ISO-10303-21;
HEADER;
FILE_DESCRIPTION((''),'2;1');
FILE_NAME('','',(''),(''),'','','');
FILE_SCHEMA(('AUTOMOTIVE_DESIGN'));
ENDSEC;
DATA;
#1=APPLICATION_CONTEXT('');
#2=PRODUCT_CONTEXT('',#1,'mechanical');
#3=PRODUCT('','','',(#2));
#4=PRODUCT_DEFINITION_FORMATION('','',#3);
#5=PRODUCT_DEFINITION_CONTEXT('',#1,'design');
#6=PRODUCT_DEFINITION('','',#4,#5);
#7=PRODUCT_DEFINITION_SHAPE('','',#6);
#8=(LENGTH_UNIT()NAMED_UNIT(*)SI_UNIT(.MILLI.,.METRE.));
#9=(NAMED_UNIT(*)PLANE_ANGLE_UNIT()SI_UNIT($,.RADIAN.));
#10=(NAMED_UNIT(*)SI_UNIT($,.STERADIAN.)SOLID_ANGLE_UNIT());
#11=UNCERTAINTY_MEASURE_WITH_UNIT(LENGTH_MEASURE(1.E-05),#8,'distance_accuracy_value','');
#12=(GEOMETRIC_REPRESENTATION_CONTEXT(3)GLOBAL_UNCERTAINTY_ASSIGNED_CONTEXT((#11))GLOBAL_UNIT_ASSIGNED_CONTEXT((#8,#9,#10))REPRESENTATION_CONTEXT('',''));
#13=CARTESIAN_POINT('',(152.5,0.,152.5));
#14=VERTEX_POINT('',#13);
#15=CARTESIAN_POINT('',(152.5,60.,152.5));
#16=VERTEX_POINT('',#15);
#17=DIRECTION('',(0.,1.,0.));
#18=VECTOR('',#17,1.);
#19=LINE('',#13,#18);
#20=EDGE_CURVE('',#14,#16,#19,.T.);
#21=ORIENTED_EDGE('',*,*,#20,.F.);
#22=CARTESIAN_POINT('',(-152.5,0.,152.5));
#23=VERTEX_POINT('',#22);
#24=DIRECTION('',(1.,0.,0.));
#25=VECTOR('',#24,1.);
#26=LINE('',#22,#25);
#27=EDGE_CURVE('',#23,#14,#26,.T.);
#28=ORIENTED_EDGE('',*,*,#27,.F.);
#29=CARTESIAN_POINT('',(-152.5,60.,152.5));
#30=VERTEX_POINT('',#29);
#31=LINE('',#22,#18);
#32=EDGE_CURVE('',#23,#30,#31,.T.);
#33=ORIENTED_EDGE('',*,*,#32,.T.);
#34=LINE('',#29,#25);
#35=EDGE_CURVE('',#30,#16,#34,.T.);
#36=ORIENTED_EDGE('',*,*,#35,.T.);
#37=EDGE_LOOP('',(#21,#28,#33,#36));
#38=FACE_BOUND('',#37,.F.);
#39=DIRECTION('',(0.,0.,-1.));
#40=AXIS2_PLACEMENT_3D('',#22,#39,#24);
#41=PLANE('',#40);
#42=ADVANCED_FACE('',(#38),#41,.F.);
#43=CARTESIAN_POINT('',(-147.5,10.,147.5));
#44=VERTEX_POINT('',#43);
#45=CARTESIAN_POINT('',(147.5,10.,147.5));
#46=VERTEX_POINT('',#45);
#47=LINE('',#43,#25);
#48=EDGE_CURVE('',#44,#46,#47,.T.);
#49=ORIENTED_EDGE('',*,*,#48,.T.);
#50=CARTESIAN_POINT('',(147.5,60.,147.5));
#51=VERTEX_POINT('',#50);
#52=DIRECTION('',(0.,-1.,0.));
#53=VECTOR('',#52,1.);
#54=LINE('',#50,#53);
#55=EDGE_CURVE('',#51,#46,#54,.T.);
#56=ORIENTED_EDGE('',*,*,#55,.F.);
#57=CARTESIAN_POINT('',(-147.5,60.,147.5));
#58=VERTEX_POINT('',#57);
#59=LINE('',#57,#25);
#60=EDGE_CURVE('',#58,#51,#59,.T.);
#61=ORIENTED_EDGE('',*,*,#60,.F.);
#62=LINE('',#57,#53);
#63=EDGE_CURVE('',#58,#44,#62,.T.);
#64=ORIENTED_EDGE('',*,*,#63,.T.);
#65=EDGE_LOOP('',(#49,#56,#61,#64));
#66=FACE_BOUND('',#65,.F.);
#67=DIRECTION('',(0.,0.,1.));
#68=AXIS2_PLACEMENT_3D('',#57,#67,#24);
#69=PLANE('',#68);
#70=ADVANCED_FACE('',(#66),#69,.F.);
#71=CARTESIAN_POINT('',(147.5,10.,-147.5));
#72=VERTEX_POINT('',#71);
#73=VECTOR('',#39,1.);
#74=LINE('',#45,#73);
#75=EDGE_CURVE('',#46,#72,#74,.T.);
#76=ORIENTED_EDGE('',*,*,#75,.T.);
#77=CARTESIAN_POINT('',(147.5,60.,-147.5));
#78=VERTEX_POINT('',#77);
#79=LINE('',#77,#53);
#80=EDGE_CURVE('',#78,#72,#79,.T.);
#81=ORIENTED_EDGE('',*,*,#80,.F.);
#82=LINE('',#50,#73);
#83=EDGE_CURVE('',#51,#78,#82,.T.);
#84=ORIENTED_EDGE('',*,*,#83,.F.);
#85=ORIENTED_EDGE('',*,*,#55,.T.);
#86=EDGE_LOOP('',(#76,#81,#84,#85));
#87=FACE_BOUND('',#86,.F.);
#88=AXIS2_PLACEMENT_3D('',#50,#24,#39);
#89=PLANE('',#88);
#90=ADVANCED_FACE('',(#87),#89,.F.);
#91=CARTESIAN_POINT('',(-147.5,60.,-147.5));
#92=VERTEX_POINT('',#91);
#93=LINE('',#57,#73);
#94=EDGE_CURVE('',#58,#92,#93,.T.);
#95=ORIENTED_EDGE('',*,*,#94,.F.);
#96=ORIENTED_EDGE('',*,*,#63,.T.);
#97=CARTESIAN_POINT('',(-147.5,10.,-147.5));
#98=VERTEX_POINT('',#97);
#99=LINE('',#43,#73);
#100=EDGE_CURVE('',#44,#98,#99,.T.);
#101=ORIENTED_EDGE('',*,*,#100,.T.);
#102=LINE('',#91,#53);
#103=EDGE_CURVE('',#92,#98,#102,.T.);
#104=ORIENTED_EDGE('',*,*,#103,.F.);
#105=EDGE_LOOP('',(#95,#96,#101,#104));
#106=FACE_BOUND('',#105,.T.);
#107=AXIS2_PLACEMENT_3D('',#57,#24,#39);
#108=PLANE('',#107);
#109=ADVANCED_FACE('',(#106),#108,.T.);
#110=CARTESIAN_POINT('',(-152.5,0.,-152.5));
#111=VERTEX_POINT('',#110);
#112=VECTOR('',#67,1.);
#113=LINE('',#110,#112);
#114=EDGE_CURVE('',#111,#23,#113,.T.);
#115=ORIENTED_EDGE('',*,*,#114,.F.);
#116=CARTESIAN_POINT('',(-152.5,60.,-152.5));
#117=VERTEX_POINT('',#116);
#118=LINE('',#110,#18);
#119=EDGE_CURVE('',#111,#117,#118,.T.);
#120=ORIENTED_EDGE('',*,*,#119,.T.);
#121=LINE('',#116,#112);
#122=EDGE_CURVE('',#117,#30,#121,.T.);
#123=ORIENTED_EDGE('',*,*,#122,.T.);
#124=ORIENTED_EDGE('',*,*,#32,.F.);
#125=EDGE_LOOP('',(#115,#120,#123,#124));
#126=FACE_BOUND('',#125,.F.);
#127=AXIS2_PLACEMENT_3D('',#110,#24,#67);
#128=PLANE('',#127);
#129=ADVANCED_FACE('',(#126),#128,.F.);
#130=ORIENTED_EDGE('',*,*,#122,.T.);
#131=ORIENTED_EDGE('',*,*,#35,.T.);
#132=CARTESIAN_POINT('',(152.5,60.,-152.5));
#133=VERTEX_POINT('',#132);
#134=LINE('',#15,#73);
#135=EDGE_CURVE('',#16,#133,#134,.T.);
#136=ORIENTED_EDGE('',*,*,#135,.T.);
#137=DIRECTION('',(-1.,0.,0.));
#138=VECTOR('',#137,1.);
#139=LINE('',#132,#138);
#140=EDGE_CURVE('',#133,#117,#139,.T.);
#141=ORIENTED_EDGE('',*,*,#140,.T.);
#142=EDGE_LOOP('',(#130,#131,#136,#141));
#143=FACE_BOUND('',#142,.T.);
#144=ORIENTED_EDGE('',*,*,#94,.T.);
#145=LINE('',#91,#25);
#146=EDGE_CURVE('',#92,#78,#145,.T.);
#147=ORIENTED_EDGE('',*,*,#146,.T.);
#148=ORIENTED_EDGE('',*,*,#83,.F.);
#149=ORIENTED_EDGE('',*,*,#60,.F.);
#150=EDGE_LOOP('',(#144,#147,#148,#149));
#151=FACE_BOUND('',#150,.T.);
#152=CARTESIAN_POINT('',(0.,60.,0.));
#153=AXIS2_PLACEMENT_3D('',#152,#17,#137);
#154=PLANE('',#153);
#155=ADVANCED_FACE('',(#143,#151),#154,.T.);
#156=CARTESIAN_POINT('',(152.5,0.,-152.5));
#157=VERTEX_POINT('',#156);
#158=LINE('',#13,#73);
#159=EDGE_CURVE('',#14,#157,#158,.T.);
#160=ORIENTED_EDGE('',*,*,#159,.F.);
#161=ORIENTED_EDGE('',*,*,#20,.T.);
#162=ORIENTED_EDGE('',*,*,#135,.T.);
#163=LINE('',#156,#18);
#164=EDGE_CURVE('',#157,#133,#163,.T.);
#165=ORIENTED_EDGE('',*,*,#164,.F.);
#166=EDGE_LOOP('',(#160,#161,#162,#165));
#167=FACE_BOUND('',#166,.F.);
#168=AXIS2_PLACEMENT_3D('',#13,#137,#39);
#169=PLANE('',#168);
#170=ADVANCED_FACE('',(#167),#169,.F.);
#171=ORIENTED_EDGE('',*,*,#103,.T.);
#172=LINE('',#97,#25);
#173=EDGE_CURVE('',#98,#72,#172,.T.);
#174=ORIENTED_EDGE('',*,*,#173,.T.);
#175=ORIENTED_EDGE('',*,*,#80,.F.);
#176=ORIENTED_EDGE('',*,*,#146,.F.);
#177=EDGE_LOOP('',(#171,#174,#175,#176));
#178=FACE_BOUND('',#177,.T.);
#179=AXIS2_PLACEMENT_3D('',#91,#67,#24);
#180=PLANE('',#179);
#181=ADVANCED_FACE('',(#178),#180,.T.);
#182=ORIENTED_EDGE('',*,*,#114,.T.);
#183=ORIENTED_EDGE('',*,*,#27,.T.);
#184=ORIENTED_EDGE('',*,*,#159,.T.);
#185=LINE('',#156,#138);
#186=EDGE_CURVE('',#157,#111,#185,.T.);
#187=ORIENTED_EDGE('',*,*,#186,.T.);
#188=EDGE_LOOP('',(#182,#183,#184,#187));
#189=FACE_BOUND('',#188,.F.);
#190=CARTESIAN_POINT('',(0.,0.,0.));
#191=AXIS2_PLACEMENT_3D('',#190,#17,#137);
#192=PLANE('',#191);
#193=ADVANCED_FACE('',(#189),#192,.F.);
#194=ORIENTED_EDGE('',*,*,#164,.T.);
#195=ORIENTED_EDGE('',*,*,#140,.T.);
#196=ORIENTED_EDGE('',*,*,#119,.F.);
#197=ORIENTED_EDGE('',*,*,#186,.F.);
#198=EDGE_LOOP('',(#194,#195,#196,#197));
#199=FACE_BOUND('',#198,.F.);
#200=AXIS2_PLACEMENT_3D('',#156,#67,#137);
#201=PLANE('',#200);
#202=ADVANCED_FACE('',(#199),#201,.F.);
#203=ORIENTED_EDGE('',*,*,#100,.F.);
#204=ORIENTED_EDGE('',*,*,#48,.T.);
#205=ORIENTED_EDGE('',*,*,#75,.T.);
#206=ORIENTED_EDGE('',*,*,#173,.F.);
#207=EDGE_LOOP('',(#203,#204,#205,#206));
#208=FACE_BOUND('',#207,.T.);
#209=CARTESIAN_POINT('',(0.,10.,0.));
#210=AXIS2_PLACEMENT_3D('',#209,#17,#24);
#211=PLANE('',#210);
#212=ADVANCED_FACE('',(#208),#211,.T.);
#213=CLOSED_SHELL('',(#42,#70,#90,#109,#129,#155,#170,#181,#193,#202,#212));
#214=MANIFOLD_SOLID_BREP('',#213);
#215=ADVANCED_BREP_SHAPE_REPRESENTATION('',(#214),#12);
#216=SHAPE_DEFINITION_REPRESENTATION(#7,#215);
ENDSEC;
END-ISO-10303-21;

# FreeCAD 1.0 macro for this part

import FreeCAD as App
import Part
import Sketcher

doc = App.newDocument("Part")
body = doc.addObject("PartDesign::Body", "Body")

# Sketch on XZ plane
sketch1 = body.newObject("Sketcher::SketchObject", "Sketch")
sketch1.AttachmentSupport = (doc.getObject("XZ_Plane"), [""])
sketch1.MapMode = "FlatFace"
sketch1.addGeometry([
    Part.LineSegment(App.Vector(-152.5, -152.5, 0), App.Vector(-152.5, 152.5, 0)),
    Part.LineSegment(App.Vector(-152.5, 152.5, 0), App.Vector(152.5, 152.5, 0)),
    Part.LineSegment(App.Vector(152.5, 152.5, 0), App.Vector(152.5, -152.5, 0)),
    Part.LineSegment(App.Vector(152.5, -152.5, 0), App.Vector(-152.5, -152.5, 0)),
], False)
sketch1.addConstraint([
    Sketcher.Constraint("Coincident", 0, 2, 1, 1),
    Sketcher.Constraint("Coincident", 1, 2, 2, 1),
    Sketcher.Constraint("Coincident", 2, 2, 3, 1),
    Sketcher.Constraint("Coincident", 3, 2, 0, 1),
    Sketcher.Constraint("Vertical", 0),
    Sketcher.Constraint("Horizontal", 1),
    Sketcher.Constraint("Vertical", 2),
    Sketcher.Constraint("Horizontal", 3),
    Sketcher.Constraint("Symmetric", 0, 2, 2, 2, -1, 1),
    Sketcher.Constraint("Equal", 3, 0),
    Sketcher.Constraint("DistanceX", 1, 1, 1, 2, 305.0),
])
pad1 = body.newObject("PartDesign::Pad", "Pad")
pad1.Profile = sketch1
pad1.Length = 60
pad1.Reversed = True

# Sketch on XZ plane
sketch2 = body.newObject("Sketcher::SketchObject", "Sketch001")
sketch2.AttachmentSupport = (doc.getObject("XZ_Plane"), [""])
sketch2.MapMode = "FlatFace"
sketch2.AttachmentOffset = App.Placement(App.Vector(0, 0, -60), App.Rotation())
sketch2.addGeometry([
    Part.LineSegment(App.Vector(-147.5, -147.5, 0), App.Vector(-147.5, 147.5, 0)),
    Part.LineSegment(App.Vector(-147.5, 147.5, 0), App.Vector(147.5, 147.5, 0)),
    Part.LineSegment(App.Vector(147.5, 147.5, 0), App.Vector(147.5, -147.5, 0)),
    Part.LineSegment(App.Vector(147.5, -147.5, 0), App.Vector(-147.5, -147.5, 0)),
], False)
sketch2.addConstraint([
    Sketcher.Constraint("Coincident", 0, 2, 1, 1),
    Sketcher.Constraint("Coincident", 1, 2, 2, 1),
    Sketcher.Constraint("Coincident", 2, 2, 3, 1),
    Sketcher.Constraint("Coincident", 3, 2, 0, 1),
    Sketcher.Constraint("Vertical", 0),
    Sketcher.Constraint("Horizontal", 1),
    Sketcher.Constraint("Vertical", 2),
    Sketcher.Constraint("Horizontal", 3),
    Sketcher.Constraint("Symmetric", 0, 2, 2, 2, -1, 1),
    Sketcher.Constraint("Equal", 3, 0),
    Sketcher.Constraint("DistanceX", 1, 1, 1, 2, 295.0),
])
pocket1 = body.newObject("PartDesign::Pocket", "Pocket")
pocket1.Profile = sketch2
pocket1.Length = 50
pocket1.Reversed = True

doc.recompute()
